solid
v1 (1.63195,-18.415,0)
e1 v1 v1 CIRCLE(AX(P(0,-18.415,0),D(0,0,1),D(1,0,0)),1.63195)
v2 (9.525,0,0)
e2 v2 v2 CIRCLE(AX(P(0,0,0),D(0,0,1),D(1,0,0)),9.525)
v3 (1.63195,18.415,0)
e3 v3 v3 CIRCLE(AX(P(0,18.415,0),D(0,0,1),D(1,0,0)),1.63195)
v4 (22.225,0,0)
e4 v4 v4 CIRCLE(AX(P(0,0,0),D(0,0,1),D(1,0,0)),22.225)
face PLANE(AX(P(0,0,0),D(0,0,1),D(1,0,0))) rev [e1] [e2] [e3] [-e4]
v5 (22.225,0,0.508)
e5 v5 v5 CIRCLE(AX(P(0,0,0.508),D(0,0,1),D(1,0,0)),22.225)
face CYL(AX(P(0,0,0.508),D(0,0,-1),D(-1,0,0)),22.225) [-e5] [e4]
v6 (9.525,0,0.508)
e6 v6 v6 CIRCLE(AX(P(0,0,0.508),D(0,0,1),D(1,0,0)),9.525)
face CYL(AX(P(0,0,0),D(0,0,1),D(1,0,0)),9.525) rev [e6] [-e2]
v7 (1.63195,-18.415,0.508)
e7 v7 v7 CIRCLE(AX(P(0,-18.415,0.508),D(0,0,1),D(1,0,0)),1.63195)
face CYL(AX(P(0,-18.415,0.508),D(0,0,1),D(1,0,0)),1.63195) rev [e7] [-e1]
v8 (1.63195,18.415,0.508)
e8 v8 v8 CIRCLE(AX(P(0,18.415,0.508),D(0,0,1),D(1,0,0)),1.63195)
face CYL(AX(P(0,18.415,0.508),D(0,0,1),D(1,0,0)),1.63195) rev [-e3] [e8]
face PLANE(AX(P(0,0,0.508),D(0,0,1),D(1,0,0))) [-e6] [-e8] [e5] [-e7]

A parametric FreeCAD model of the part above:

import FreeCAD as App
import Part
import Sketcher
Q = App.Units.Quantity

doc = App.newDocument("Part")
body = doc.addObject("PartDesign::Body", "Body")

sketch1 = doc.addObject("Sketcher::SketchObject", "Sketch")
body.addObject(sketch1)
sketch1.AttachmentSupport = (doc.XY_Plane, [""])
sketch1.MapMode = "FlatFace"
sketch1.addGeometry(Part.Circle(App.Vector(0, 0, 0), App.Vector(0, 0, 1), 22.225), False)
sketch1.addConstraint([
    Sketcher.Constraint("Coincident", 0, 3, -1, 1),
    Sketcher.Constraint("Diameter", 0, Q("1.75 in")),
])
pad1 = doc.addObject("PartDesign::Pad", "Pad")
body.addObject(pad1)
pad1.Profile = sketch1
pad1.Length = Q("0.02 in")

sketch2 = doc.addObject("Sketcher::SketchObject", "Sketch001")
body.addObject(sketch2)
sketch2.AttachmentSupport = (doc.XY_Plane, [""])
sketch2.MapMode = "FlatFace"
sketch2.AttachmentOffset = App.Placement(App.Vector(0, 0, 0.02 * 25.4), App.Rotation())
sketch2.addGeometry(Part.Circle(App.Vector(0, 0, 0), App.Vector(0, 0, 1), 9.525), False)
sketch2.addConstraint([
    Sketcher.Constraint("Coincident", 0, 3, -1, 1),
    Sketcher.Constraint("Diameter", 0, Q("0.75 in")),
])
pocket1 = doc.addObject("PartDesign::Pocket", "Pocket")
body.addObject(pocket1)
pocket1.Profile = sketch2
pocket1.Type = "ThroughAll"

sketch3 = doc.addObject("Sketcher::SketchObject", "Sketch002")
body.addObject(sketch3)
sketch3.AttachmentSupport = (doc.XY_Plane, [""])
sketch3.MapMode = "FlatFace"
sketch3.AttachmentOffset = App.Placement(App.Vector(0, 0, 0.02 * 25.4), App.Rotation())
sketch3.addGeometry(Part.Circle(App.Vector(0, 18.415, 0), App.Vector(0, 0, 1), 1.63195), False)
sketch3.addConstraint([
    Sketcher.Constraint("PointOnObject", 0, 3, -2),
    Sketcher.Constraint("Diameter", 0, Q("0.1285 in")),
    Sketcher.Constraint("DistanceY", -1, 1, 0, 3, Q("0.725 in")),
])
doc.recompute()
hole = doc.addObject("PartDesign::Hole", "Hole")
body.addObject(hole)
hole.Profile = sketch3
hole.ThreadType = "None"
hole.Diameter = Q("0.1285 in")
hole.DepthType = "ThroughAll"
doc.recompute()

mirrored = doc.addObject("PartDesign::Mirrored", "Mirrored")
body.addObject(mirrored)
mirrored.Originals = [hole]
mirrored.MirrorPlane = (doc.XZ_Plane, [""])
body.Tip = mirrored

doc.recompute()
